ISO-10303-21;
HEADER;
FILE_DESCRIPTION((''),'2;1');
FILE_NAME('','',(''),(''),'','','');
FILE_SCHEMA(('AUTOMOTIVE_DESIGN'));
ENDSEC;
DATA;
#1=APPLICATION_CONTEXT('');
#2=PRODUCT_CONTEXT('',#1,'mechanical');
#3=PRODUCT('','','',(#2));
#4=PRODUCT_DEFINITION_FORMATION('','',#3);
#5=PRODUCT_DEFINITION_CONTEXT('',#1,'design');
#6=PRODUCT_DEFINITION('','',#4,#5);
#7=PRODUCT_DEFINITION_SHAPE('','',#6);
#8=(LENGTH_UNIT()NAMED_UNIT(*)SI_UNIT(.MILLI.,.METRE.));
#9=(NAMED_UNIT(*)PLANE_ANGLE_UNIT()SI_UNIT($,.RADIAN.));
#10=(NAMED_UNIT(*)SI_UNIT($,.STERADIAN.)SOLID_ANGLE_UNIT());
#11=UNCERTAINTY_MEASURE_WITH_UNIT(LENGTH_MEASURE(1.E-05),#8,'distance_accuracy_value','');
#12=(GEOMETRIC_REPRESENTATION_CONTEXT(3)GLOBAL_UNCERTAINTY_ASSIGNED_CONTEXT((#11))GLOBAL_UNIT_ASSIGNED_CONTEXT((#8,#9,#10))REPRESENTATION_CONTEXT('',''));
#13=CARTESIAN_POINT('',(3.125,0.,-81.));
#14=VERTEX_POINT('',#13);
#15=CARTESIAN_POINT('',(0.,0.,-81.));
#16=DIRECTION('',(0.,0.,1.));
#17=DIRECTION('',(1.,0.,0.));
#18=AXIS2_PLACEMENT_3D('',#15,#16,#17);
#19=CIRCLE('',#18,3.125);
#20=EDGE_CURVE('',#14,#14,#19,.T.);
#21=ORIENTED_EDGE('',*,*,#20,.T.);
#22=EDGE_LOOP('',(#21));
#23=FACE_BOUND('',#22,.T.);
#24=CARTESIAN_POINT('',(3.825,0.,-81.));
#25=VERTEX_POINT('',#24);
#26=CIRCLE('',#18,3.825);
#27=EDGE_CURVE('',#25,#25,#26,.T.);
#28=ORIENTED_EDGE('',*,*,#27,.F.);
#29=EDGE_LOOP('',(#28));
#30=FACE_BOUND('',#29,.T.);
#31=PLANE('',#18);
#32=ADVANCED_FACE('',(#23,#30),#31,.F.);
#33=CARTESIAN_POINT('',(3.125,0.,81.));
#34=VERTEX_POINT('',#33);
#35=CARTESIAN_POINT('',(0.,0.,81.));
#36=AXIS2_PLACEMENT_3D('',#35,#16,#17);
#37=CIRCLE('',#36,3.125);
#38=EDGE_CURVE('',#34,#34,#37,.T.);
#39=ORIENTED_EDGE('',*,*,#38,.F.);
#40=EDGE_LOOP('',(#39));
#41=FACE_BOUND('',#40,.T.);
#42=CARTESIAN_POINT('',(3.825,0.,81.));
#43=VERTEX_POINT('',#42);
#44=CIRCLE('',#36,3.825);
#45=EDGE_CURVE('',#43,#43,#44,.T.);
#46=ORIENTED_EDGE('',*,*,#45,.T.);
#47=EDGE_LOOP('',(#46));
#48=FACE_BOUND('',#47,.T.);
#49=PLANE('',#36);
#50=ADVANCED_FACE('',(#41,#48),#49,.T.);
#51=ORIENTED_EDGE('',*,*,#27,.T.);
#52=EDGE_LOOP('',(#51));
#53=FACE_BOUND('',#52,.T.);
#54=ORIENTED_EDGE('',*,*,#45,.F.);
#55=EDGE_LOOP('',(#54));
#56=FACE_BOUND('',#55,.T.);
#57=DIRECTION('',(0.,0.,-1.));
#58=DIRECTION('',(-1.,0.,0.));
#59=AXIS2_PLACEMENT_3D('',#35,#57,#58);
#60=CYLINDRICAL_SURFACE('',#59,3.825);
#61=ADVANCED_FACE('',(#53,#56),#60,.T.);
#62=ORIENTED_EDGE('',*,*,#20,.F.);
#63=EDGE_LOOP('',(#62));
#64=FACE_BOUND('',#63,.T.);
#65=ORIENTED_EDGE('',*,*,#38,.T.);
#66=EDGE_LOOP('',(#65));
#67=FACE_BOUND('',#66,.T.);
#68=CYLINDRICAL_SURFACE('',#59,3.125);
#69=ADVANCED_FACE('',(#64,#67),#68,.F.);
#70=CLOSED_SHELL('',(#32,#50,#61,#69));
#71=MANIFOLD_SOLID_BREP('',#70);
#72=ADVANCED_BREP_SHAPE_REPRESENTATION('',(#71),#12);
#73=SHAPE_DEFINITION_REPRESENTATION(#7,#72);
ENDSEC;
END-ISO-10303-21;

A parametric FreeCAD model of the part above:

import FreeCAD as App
import Part
import Sketcher

V = App.Vector

doc = App.newDocument("Part")
params = doc.addObject("Spreadsheet::Sheet", "Params")
for row, (alias, value) in enumerate([
    ("sketch1_diameter", "7.65 mm"),
    ("sketch1_diameter2", "6.25 mm"),
    ("pad1_length", "162 mm"),
], start=1):
    params.set(f"A{row}", alias)
    params.set(f"B{row}", "=" + value)
    params.setAlias(f"B{row}", alias)

body = doc.addObject("PartDesign::Body", "Body")

sketch1 = body.newObject("Sketcher::SketchObject", "Sketch")
sketch1.AttachmentSupport = (doc.getObject("XY_Plane"), [""])
sketch1.MapMode = "FlatFace"
sketch1.addGeometry([
    Part.Circle(V(0, 0, 0), V(0, 0, 1), 3.8),
    Part.Circle(V(0, 0, 0), V(0, 0, 1), 3.1),
], False)
sketch1.addConstraint([
    Sketcher.Constraint("Coincident", 0, 3, -1, 1),
    Sketcher.Constraint("Coincident", 1, 3, -1, 1),
    Sketcher.Constraint("Diameter", 0, 7.65),
    Sketcher.Constraint("Diameter", 1, 6.25),
])
sketch1.setExpression("Constraints[2]", "Params.sketch1_diameter")
sketch1.setExpression("Constraints[3]", "Params.sketch1_diameter2")
pad1 = body.newObject("PartDesign::Pad", "Pad")
pad1.Profile = sketch1
pad1.setExpression("Length", "Params.pad1_length")
pad1.Midplane = True

doc.recompute()
